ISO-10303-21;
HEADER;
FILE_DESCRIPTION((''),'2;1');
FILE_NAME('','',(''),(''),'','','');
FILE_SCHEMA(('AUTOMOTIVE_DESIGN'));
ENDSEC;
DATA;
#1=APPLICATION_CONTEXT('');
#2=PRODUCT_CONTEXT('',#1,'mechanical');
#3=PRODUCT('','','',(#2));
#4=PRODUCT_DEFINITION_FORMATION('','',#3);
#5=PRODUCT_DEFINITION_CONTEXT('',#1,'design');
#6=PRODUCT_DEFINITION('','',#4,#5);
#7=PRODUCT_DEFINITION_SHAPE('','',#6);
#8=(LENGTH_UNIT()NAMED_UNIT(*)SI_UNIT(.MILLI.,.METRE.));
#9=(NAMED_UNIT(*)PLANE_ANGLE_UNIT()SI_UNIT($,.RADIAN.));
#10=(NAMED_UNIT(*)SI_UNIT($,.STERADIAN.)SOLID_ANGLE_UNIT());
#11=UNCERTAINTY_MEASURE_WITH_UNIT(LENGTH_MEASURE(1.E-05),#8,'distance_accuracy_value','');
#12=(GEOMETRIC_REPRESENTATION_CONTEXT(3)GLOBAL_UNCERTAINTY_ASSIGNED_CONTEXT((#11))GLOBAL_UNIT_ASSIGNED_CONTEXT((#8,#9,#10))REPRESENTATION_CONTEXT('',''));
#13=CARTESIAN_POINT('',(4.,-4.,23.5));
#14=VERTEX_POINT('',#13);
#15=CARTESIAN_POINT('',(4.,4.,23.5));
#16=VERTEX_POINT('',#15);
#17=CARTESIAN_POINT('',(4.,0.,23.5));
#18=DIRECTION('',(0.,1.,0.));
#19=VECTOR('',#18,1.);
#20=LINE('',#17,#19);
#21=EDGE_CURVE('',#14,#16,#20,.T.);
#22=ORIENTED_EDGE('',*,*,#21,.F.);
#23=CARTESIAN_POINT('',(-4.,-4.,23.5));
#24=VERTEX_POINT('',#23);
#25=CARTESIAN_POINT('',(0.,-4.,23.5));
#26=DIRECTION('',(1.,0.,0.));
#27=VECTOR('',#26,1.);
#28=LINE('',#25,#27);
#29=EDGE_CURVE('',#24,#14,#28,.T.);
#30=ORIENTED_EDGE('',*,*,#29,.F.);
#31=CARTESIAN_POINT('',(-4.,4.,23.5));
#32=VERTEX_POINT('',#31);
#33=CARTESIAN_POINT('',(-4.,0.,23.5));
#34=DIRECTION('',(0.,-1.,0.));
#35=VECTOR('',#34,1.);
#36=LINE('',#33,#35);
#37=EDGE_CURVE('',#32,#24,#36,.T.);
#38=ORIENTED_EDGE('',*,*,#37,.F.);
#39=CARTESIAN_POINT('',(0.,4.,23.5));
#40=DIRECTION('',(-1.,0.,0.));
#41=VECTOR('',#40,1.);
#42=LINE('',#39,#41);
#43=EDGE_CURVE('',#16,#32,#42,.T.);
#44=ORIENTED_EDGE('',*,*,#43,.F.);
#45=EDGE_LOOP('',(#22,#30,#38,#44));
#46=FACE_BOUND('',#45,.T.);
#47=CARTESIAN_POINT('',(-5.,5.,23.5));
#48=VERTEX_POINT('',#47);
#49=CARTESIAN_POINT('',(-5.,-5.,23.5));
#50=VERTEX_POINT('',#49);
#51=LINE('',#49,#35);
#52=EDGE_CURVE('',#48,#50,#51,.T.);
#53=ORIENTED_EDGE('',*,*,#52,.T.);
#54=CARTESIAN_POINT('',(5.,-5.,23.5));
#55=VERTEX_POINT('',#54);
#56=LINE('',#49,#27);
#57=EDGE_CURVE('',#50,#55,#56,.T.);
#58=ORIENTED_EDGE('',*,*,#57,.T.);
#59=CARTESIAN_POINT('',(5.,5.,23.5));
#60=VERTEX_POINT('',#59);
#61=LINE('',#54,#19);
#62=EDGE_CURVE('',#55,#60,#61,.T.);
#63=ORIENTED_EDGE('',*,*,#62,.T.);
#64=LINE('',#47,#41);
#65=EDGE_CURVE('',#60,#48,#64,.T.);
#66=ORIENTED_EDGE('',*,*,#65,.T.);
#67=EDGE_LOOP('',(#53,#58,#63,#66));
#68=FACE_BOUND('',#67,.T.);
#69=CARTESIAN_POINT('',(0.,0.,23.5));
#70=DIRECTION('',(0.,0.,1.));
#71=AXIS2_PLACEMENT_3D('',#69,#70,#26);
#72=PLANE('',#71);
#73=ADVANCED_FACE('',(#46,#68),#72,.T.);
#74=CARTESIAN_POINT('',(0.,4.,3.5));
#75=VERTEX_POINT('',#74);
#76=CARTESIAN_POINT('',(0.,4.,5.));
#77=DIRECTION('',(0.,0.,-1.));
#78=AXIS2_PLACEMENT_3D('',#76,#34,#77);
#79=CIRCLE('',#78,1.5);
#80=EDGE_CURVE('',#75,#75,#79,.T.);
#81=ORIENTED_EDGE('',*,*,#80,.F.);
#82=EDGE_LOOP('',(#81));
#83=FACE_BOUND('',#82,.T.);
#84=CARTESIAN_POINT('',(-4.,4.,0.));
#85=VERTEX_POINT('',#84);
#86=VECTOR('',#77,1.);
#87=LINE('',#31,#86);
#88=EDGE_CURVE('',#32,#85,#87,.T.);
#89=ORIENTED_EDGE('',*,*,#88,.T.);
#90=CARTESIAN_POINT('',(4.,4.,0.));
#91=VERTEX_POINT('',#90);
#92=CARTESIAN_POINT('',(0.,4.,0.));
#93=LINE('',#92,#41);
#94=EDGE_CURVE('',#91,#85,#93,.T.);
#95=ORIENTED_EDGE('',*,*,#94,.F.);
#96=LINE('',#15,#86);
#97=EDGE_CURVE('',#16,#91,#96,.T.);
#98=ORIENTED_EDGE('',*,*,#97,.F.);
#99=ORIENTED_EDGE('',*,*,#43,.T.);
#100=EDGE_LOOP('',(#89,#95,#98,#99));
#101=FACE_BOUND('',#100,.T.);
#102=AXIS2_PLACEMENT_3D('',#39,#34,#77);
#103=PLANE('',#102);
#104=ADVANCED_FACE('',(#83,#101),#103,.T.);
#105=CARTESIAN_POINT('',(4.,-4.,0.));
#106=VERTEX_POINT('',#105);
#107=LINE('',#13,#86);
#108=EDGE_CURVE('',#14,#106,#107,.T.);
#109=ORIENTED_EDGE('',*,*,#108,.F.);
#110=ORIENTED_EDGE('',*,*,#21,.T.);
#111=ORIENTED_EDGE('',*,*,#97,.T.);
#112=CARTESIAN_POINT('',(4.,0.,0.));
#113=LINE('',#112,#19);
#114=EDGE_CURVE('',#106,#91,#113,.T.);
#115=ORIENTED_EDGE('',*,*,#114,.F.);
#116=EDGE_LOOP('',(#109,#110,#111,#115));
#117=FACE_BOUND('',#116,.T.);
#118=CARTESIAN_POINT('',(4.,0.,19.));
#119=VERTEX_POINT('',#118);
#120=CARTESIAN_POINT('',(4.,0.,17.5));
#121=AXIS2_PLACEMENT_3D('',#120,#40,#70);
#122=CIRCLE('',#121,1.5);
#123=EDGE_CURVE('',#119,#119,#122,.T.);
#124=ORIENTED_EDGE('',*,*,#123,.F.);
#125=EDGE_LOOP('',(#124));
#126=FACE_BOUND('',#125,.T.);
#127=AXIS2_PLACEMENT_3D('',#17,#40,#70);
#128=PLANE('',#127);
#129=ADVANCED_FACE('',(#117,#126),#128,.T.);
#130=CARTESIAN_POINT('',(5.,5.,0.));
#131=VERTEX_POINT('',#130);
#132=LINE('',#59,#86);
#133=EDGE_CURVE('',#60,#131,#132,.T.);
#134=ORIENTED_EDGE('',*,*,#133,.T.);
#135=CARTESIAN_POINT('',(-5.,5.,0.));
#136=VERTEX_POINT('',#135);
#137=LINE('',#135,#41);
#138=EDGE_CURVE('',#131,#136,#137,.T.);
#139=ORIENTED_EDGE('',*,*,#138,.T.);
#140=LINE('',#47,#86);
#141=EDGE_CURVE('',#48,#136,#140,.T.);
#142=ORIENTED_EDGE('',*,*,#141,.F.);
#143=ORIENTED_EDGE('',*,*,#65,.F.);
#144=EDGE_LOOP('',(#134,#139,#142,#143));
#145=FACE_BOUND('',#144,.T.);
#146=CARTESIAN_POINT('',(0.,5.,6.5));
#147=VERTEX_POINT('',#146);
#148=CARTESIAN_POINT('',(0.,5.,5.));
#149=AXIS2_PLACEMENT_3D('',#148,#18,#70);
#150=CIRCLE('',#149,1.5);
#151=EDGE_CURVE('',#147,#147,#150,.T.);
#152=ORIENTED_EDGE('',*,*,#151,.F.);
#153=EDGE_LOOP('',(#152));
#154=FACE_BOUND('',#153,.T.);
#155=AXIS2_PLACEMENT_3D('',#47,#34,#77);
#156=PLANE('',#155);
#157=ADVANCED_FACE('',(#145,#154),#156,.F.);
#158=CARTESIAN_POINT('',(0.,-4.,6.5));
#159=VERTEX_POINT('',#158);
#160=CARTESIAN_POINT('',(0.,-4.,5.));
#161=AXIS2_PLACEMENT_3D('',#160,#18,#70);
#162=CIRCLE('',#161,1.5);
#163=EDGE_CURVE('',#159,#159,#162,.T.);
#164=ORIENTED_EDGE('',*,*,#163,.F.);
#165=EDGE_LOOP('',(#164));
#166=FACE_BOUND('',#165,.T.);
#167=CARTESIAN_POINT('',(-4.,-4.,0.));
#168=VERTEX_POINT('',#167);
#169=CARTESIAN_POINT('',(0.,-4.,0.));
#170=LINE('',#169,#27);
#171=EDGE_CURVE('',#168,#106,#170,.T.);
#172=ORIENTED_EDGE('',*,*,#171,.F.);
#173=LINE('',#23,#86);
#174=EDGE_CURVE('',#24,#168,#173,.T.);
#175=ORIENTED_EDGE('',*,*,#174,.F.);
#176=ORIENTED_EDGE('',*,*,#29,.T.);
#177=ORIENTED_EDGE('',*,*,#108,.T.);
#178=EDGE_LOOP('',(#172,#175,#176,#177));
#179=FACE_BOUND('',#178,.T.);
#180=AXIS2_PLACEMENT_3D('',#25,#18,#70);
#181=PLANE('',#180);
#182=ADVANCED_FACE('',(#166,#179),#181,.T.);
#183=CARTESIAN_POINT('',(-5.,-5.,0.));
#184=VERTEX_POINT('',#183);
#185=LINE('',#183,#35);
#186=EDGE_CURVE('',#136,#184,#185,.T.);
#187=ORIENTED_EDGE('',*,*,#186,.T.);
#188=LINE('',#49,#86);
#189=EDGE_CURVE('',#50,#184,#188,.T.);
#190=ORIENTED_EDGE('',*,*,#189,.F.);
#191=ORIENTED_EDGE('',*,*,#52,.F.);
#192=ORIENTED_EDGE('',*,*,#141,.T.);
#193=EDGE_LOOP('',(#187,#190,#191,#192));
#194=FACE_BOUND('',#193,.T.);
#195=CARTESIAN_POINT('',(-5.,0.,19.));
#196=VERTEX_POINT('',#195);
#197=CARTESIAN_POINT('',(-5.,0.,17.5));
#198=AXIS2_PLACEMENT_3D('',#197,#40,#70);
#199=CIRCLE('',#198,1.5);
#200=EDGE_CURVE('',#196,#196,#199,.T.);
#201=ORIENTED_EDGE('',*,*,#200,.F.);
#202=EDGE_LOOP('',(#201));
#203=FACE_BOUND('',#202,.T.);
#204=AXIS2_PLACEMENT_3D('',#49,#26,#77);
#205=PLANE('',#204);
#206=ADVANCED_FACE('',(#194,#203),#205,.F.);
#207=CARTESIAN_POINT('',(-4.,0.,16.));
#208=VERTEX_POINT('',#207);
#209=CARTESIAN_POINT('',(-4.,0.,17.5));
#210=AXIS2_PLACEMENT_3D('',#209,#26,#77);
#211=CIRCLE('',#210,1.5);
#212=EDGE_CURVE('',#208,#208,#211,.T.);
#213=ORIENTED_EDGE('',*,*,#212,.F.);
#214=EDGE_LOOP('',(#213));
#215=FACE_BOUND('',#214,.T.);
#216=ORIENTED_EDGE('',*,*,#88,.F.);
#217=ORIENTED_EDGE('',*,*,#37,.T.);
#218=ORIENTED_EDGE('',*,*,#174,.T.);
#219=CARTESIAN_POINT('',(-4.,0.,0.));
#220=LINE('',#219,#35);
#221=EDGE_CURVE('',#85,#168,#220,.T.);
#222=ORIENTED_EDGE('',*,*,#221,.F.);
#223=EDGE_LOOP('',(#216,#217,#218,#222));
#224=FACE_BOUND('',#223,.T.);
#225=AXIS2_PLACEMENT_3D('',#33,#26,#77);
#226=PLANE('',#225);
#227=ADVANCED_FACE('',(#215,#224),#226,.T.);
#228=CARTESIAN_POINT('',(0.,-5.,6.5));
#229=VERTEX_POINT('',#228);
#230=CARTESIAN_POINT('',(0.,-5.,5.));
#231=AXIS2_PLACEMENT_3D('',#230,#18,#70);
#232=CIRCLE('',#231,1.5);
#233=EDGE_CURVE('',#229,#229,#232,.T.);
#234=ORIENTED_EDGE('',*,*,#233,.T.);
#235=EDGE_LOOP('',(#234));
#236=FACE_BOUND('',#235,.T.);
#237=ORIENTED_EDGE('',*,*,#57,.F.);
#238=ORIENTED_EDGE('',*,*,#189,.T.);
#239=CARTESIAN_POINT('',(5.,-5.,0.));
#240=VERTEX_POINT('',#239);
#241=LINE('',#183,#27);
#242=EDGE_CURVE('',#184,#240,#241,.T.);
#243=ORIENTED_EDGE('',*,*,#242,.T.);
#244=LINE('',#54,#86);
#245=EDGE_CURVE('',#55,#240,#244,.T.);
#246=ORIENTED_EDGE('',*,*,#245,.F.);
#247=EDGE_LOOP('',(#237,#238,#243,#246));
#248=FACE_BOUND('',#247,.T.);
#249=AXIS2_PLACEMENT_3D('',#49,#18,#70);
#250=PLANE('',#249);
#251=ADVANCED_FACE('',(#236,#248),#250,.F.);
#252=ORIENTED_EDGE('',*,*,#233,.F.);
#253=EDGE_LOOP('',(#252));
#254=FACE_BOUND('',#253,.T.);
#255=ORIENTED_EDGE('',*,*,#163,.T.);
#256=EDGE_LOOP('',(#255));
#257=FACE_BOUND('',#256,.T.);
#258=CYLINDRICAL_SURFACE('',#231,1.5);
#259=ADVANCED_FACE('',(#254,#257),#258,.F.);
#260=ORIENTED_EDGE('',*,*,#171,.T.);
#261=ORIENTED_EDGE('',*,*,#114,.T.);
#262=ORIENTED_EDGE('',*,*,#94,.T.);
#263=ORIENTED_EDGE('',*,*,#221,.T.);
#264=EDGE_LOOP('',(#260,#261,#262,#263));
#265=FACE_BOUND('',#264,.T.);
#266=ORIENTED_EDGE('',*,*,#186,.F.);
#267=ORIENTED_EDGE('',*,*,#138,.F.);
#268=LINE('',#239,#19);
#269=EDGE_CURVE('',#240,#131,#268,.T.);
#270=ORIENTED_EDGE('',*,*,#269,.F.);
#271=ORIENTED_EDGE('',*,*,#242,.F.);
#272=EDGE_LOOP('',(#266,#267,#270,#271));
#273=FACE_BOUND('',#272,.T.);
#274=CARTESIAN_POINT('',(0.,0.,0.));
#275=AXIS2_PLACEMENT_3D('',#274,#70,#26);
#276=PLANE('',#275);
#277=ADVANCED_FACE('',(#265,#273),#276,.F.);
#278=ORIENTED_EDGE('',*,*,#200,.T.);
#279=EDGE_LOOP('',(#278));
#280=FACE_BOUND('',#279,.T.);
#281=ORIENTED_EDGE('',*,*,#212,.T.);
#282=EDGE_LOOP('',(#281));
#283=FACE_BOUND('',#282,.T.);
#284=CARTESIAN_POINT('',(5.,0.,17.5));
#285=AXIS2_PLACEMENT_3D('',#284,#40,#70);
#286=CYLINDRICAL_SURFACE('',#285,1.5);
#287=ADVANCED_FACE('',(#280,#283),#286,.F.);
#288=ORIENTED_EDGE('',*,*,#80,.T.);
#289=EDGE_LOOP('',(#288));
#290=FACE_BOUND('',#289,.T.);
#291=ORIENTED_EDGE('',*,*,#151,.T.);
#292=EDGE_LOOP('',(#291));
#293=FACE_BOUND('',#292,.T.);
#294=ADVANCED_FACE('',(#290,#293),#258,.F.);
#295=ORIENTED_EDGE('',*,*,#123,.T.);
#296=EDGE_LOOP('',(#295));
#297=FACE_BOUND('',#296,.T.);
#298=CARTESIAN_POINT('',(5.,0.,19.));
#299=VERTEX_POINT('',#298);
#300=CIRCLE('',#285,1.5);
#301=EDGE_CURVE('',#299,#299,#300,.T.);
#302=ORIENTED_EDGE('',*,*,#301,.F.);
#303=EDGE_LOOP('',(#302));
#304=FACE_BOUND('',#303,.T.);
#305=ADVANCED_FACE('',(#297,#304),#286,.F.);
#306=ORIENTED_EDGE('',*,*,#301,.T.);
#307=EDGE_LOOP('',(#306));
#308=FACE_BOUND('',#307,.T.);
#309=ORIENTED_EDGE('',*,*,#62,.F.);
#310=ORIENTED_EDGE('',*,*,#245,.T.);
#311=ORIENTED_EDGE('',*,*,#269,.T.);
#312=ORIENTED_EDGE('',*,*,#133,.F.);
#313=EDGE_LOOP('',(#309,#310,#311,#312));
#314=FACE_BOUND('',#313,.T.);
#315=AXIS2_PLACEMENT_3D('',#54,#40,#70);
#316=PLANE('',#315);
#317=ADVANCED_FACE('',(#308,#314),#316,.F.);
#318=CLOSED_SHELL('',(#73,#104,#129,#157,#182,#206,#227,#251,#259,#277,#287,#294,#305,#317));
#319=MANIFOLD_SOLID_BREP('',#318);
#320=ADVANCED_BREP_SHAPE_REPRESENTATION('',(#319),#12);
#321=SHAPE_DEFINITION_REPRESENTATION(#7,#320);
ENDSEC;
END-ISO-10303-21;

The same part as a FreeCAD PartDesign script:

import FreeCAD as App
import Part
import Sketcher
Q = App.Units.Quantity


def add_polygon(sketch, points):
    """Adds a closed chain of lines whose ends are joined by coincident constraints."""
    first, n = sketch.GeometryCount, len(points)
    for a, b in zip(points, points[1:] + points[:1]):
        sketch.addGeometry(Part.LineSegment(App.Vector(*a, 0), App.Vector(*b, 0)), False)
    for i in range(n):
        sketch.addConstraint(Sketcher.Constraint("Coincident", first + i, 2, first + (i + 1) % n, 1))

doc = App.newDocument("Part")
body = doc.addObject("PartDesign::Body", "Body")

sketch1 = body.newObject("Sketcher::SketchObject", "Sketch")
sketch1.AttachmentSupport = (doc.getObject("XY_Plane"), [""])
sketch1.MapMode = "FlatFace"
add_polygon(sketch1, [(-5, 5), (-5, -5), (5, -5), (5, 5)])
add_polygon(sketch1, [(4, -4), (-4, -4), (-4, 4), (4, 4)])
sketch1.addConstraint([
    Sketcher.Constraint("Vertical", 0),
    Sketcher.Constraint("Horizontal", 1),
    Sketcher.Constraint("Vertical", 2),
    Sketcher.Constraint("Horizontal", 3),
    Sketcher.Constraint("Horizontal", 4),
    Sketcher.Constraint("Vertical", 5),
    Sketcher.Constraint("Horizontal", 6),
    Sketcher.Constraint("Vertical", 7),
    Sketcher.Constraint("Symmetric", 0, 2, 2, 2, -1, 1),
    Sketcher.Constraint("Symmetric", 4, 2, 6, 2, -1, 1),
    Sketcher.Constraint("Equal", 3, 0),
    Sketcher.Constraint("Equal", 6, 5),
    Sketcher.Constraint("DistanceX", 1, 1, 1, 2, Q("10 mm")),
    Sketcher.Constraint("DistanceX", 4, 2, 4, 1, Q("8 mm")),
])
pad1 = body.newObject("PartDesign::Pad", "Pad")
pad1.Profile = sketch1
pad1.Length = 23.5

sketch2 = body.newObject("Sketcher::SketchObject", "Sketch001")
sketch2.AttachmentSupport = (doc.getObject("XZ_Plane"), [""])
sketch2.MapMode = "FlatFace"
sketch2.AttachmentOffset = App.Placement(App.Vector(0, 0, -5), App.Rotation())
sketch2.addGeometry(Part.Circle(App.Vector(0, 5, 0), App.Vector(0, 0, 1), 1.5), False)
sketch2.addConstraint([
    Sketcher.Constraint("PointOnObject", 0, 3, -2),
    Sketcher.Constraint("Diameter", 0, Q("3 mm")),
    Sketcher.Constraint("DistanceY", -1, 1, 0, 3, Q("5 mm")),
])
pocket1 = body.newObject("PartDesign::Pocket", "Pocket")
pocket1.Profile = sketch2
pocket1.Type = "ThroughAll"
pocket1.Reversed = True

sketch3 = body.newObject("Sketcher::SketchObject", "Sketch002")
sketch3.AttachmentSupport = (doc.getObject("YZ_Plane"), [""])
sketch3.MapMode = "FlatFace"
sketch3.AttachmentOffset = App.Placement(App.Vector(0, 0, -5), App.Rotation())
sketch3.addGeometry(Part.Circle(App.Vector(0, 17.5, 0), App.Vector(0, 0, 1), 1.5), False)
sketch3.addConstraint([
    Sketcher.Constraint("PointOnObject", 0, 3, -2),
    Sketcher.Constraint("Diameter", 0, Q("3 mm")),
    Sketcher.Constraint("DistanceY", -1, 1, 0, 3, Q("17.5 mm")),
])
pocket2 = body.newObject("PartDesign::Pocket", "Pocket001")
pocket2.Profile = sketch3
pocket2.Type = "ThroughAll"
pocket2.Reversed = True

doc.recompute()
